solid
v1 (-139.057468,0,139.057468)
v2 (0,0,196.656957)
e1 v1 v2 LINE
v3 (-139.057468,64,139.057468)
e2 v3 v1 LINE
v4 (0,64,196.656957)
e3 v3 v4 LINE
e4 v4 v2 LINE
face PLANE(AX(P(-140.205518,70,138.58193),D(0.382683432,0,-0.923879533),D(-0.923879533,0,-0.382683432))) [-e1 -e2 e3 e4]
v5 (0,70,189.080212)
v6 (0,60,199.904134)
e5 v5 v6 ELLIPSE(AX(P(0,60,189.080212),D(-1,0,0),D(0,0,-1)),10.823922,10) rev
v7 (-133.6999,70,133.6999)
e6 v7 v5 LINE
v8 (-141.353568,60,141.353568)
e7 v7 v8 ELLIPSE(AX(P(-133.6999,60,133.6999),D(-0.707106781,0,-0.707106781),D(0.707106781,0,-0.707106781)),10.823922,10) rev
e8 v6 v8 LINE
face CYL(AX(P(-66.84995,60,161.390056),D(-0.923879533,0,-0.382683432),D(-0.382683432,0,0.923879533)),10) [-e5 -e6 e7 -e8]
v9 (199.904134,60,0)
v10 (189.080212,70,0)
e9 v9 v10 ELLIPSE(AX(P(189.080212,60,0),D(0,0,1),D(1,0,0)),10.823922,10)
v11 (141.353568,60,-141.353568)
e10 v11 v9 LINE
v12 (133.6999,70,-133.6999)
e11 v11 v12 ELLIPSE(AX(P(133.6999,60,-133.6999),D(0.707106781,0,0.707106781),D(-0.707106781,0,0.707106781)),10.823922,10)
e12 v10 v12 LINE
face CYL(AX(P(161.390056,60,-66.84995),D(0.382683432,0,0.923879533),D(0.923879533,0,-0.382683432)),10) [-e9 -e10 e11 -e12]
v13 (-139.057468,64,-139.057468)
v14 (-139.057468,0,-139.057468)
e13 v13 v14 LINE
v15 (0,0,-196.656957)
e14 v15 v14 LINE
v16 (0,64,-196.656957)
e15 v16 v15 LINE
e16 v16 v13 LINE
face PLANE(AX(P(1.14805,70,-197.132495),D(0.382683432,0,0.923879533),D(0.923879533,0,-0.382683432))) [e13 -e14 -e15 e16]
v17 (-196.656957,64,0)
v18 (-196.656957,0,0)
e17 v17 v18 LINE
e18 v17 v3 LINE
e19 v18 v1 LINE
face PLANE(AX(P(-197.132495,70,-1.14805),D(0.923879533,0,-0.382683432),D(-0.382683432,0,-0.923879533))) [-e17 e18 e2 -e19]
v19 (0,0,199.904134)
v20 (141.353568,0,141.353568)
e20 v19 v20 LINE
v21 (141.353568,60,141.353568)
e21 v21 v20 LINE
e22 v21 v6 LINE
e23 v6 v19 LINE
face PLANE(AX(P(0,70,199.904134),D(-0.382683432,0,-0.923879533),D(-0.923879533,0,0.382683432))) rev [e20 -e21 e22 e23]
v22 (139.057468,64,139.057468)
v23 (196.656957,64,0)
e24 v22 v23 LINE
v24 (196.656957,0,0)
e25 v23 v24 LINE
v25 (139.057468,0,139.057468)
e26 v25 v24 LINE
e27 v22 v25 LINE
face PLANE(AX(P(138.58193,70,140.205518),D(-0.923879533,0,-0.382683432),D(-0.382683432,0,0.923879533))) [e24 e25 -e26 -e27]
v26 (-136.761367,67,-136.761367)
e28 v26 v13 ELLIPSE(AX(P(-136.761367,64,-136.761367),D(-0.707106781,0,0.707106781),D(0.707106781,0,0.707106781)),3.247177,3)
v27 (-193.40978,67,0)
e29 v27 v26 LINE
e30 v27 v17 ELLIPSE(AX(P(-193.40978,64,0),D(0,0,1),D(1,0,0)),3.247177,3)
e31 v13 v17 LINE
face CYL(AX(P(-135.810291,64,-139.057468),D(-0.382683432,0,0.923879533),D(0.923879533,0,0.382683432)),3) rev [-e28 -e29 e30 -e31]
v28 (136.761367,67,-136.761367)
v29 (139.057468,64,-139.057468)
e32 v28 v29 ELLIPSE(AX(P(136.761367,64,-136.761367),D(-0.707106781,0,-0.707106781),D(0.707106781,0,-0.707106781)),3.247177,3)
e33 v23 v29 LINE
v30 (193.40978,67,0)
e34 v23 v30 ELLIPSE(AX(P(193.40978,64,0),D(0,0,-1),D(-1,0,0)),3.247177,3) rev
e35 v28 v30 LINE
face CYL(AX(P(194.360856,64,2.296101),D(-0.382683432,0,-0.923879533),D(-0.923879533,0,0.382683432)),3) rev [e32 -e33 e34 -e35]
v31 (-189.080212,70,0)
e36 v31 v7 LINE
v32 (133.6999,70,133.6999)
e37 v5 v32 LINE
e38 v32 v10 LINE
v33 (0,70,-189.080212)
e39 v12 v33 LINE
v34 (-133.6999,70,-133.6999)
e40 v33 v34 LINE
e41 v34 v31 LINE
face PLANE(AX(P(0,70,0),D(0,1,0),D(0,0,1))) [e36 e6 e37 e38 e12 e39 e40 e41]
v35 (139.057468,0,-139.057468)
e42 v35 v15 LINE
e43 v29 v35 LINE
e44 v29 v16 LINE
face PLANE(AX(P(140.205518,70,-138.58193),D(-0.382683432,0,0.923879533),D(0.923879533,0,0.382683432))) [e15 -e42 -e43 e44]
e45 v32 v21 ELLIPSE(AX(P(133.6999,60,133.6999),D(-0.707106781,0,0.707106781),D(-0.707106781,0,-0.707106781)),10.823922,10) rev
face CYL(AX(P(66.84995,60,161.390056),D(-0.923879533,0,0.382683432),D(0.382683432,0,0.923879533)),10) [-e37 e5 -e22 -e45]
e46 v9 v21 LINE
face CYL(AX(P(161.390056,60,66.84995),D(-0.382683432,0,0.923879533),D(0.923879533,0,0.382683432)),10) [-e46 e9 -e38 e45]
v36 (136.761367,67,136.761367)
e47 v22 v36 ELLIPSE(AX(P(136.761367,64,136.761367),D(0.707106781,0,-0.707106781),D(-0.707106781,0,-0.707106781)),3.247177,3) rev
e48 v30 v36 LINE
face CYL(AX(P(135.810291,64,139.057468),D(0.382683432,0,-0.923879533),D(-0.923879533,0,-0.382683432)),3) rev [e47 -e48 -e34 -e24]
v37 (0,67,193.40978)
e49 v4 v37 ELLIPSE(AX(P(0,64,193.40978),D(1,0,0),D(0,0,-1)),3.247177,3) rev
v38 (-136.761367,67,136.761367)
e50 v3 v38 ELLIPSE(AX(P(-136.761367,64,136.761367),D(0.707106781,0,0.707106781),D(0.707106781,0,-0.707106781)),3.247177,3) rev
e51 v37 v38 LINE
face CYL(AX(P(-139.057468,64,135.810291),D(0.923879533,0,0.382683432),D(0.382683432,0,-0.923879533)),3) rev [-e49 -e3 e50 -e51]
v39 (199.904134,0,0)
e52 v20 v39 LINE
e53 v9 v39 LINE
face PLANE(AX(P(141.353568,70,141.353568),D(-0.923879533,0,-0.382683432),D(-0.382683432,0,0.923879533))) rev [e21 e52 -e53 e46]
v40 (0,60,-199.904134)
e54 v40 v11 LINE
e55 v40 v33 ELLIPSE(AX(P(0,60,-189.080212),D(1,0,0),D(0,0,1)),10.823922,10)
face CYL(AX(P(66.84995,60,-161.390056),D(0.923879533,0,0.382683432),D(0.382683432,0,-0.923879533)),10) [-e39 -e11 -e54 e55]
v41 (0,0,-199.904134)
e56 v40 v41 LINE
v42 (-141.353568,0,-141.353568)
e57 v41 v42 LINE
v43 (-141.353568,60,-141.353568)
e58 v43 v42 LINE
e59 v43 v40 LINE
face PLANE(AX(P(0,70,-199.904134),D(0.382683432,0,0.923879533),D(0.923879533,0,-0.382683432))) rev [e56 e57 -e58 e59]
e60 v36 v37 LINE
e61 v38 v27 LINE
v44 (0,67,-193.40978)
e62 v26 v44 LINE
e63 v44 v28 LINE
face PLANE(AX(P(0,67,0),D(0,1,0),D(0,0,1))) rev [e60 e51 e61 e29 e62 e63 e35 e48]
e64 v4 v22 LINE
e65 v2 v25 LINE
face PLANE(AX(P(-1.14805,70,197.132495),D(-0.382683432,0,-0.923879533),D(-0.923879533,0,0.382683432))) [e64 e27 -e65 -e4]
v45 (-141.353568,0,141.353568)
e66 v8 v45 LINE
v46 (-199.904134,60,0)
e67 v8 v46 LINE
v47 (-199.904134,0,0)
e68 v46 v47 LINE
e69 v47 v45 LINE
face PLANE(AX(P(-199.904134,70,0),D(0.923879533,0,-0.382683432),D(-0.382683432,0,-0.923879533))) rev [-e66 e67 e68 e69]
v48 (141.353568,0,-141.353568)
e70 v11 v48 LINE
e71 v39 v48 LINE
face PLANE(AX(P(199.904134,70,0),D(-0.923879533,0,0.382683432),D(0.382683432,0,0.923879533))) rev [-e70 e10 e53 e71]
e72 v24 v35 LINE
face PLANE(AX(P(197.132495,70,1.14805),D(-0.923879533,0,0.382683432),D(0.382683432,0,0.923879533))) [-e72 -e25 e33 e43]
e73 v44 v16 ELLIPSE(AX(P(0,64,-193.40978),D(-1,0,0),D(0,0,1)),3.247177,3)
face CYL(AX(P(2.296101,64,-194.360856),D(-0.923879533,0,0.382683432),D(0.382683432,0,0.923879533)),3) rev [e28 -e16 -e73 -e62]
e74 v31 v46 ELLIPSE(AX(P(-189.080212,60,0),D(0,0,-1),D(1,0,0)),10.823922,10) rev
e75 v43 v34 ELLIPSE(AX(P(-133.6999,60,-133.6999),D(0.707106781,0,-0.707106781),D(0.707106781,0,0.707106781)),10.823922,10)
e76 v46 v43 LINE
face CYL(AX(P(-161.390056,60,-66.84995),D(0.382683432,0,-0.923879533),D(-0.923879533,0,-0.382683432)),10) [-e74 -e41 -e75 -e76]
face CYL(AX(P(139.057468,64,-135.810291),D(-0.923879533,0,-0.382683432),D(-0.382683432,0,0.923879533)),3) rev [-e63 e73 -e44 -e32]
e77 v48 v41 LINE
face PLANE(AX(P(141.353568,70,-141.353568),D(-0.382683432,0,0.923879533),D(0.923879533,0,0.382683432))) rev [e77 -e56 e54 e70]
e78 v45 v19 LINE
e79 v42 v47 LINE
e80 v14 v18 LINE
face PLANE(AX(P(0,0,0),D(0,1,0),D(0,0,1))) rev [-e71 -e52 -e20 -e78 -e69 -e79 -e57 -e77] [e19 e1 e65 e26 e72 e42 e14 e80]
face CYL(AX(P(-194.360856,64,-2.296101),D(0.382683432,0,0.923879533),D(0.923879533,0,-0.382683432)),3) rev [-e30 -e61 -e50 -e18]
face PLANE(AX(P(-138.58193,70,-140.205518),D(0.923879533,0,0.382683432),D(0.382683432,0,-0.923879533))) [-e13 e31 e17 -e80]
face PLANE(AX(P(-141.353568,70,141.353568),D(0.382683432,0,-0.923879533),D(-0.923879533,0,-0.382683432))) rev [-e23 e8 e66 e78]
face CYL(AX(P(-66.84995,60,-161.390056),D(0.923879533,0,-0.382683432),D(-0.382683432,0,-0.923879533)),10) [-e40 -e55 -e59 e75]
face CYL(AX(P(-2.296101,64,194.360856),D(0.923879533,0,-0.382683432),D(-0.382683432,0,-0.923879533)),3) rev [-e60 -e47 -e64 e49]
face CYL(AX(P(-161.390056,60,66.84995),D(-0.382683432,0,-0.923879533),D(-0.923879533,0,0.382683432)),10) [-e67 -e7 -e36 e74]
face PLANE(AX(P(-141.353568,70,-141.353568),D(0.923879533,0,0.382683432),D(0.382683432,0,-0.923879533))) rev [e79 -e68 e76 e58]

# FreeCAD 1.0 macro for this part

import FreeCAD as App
import Part
import Sketcher
Q = App.Units.Quantity


def edges_at(feature, points):
    """Names of the edges that pass closest to the given points."""
    edges = feature.Shape.Edges
    near = lambda p: min(range(len(edges)), key=lambda i: edges[i].distToShape(Part.Vertex(*p))[0])
    return sorted({f"Edge{near(p) + 1}" for p in points})


def faces_at(feature, points):
    """Names of the faces that lie closest to the given points."""
    faces = feature.Shape.Faces
    near = lambda p: min(range(len(faces)), key=lambda i: faces[i].distToShape(Part.Vertex(*p))[0])
    return sorted({f"Face{near(p) + 1}" for p in points})

doc = App.newDocument("Part")
body = doc.addObject("PartDesign::Body", "Body")

sketch1 = body.newObject("Sketcher::SketchObject", "Sketch")
sketch1.AttachmentSupport = (doc.getObject("XZ_Plane"), [""])
sketch1.MapMode = "FlatFace"
sketch1.addGeometry([
    Part.LineSegment(App.Vector(0, -199.904134, 0), App.Vector(-141.353568, -141.353568, 0)),
    Part.LineSegment(App.Vector(-141.353568, -141.353568, 0), App.Vector(-199.904134, 0, 0)),
    Part.LineSegment(App.Vector(-199.904134, 0, 0), App.Vector(-141.353568, 141.353568, 0)),
    Part.LineSegment(App.Vector(-141.353568, 141.353568, 0), App.Vector(0, 199.904134, 0)),
    Part.LineSegment(App.Vector(0, 199.904134, 0), App.Vector(141.353568, 141.353568, 0)),
    Part.LineSegment(App.Vector(141.353568, 141.353568, 0), App.Vector(199.904134, 0, 0)),
    Part.LineSegment(App.Vector(199.904134, 0, 0), App.Vector(141.353568, -141.353568, 0)),
    Part.LineSegment(App.Vector(141.353568, -141.353568, 0), App.Vector(0, -199.904134, 0)),
], False)
sketch1.addConstraint([
    Sketcher.Constraint("Coincident", 0, 2, 1, 1),
    Sketcher.Constraint("Coincident", 1, 2, 2, 1),
    Sketcher.Constraint("Coincident", 2, 2, 3, 1),
    Sketcher.Constraint("Coincident", 3, 2, 4, 1),
    Sketcher.Constraint("Coincident", 4, 2, 5, 1),
    Sketcher.Constraint("Coincident", 5, 2, 6, 1),
    Sketcher.Constraint("Coincident", 6, 2, 7, 1),
    Sketcher.Constraint("Coincident", 7, 2, 0, 1),
    Sketcher.Constraint("Symmetric", 0, 2, 4, 2, -1, 1),
    Sketcher.Constraint("Symmetric", 1, 2, 5, 2, -1, 1),
    Sketcher.Constraint("Symmetric", 2, 2, 6, 2, -1, 1),
    Sketcher.Constraint("Symmetric", 3, 2, 7, 2, -1, 1),
    Sketcher.Constraint("Symmetric", 2, 2, 4, 2, -2),
    Sketcher.Constraint("PointOnObject", 1, 2, -1),
    Sketcher.Constraint("PointOnObject", 3, 2, -2),
    Sketcher.Constraint("Perpendicular", 0, 2),
    Sketcher.Constraint("Equal", 0, 1),
    Sketcher.Constraint("Distance", 0, 153.0),
    Sketcher.Constraint("Angle", 0, Q("157.5 deg")),
])
pad1 = body.newObject("PartDesign::Pad", "Pad")
pad1.Profile = sketch1
pad1.Length = 70
pad1.Reversed = True
doc.recompute()

thickness = body.newObject("PartDesign::Thickness", "Thickness")
thickness.Base = (pad1, faces_at(pad1, [(0, 0, 0)]))
thickness.Value = 3
thickness.Reversed = True
thickness.Join = "Intersection"
doc.recompute()

fillet = body.newObject("PartDesign::Fillet", "Fillet")
fillet.Base = (thickness, edges_at(thickness, [
    (170.629, 70, -70.677),
    (70.677, 70, -170.629),
    (-70.677, 70, -170.629),
    (-170.629, 70, -70.677),
    (-170.629, 70, 70.677),
    (-70.677, 70, 170.629),
    (70.677, 70, 170.629),
    (170.629, 70, 70.677),
]))
fillet.Radius = 10
doc.recompute()

fillet2 = body.newObject("PartDesign::Fillet", "Fillet001")
fillet2.Base = (fillet, edges_at(fillet, [
    (69.529, 67, 167.857),
    (167.857, 67, 69.529),
    (167.857, 67, -69.529),
    (69.529, 67, -167.857),
    (-69.529, 67, -167.857),
    (-167.857, 67, -69.529),
    (-167.857, 67, 69.529),
    (-69.529, 67, 167.857),
]))
fillet2.Radius = 3

doc.recompute()
